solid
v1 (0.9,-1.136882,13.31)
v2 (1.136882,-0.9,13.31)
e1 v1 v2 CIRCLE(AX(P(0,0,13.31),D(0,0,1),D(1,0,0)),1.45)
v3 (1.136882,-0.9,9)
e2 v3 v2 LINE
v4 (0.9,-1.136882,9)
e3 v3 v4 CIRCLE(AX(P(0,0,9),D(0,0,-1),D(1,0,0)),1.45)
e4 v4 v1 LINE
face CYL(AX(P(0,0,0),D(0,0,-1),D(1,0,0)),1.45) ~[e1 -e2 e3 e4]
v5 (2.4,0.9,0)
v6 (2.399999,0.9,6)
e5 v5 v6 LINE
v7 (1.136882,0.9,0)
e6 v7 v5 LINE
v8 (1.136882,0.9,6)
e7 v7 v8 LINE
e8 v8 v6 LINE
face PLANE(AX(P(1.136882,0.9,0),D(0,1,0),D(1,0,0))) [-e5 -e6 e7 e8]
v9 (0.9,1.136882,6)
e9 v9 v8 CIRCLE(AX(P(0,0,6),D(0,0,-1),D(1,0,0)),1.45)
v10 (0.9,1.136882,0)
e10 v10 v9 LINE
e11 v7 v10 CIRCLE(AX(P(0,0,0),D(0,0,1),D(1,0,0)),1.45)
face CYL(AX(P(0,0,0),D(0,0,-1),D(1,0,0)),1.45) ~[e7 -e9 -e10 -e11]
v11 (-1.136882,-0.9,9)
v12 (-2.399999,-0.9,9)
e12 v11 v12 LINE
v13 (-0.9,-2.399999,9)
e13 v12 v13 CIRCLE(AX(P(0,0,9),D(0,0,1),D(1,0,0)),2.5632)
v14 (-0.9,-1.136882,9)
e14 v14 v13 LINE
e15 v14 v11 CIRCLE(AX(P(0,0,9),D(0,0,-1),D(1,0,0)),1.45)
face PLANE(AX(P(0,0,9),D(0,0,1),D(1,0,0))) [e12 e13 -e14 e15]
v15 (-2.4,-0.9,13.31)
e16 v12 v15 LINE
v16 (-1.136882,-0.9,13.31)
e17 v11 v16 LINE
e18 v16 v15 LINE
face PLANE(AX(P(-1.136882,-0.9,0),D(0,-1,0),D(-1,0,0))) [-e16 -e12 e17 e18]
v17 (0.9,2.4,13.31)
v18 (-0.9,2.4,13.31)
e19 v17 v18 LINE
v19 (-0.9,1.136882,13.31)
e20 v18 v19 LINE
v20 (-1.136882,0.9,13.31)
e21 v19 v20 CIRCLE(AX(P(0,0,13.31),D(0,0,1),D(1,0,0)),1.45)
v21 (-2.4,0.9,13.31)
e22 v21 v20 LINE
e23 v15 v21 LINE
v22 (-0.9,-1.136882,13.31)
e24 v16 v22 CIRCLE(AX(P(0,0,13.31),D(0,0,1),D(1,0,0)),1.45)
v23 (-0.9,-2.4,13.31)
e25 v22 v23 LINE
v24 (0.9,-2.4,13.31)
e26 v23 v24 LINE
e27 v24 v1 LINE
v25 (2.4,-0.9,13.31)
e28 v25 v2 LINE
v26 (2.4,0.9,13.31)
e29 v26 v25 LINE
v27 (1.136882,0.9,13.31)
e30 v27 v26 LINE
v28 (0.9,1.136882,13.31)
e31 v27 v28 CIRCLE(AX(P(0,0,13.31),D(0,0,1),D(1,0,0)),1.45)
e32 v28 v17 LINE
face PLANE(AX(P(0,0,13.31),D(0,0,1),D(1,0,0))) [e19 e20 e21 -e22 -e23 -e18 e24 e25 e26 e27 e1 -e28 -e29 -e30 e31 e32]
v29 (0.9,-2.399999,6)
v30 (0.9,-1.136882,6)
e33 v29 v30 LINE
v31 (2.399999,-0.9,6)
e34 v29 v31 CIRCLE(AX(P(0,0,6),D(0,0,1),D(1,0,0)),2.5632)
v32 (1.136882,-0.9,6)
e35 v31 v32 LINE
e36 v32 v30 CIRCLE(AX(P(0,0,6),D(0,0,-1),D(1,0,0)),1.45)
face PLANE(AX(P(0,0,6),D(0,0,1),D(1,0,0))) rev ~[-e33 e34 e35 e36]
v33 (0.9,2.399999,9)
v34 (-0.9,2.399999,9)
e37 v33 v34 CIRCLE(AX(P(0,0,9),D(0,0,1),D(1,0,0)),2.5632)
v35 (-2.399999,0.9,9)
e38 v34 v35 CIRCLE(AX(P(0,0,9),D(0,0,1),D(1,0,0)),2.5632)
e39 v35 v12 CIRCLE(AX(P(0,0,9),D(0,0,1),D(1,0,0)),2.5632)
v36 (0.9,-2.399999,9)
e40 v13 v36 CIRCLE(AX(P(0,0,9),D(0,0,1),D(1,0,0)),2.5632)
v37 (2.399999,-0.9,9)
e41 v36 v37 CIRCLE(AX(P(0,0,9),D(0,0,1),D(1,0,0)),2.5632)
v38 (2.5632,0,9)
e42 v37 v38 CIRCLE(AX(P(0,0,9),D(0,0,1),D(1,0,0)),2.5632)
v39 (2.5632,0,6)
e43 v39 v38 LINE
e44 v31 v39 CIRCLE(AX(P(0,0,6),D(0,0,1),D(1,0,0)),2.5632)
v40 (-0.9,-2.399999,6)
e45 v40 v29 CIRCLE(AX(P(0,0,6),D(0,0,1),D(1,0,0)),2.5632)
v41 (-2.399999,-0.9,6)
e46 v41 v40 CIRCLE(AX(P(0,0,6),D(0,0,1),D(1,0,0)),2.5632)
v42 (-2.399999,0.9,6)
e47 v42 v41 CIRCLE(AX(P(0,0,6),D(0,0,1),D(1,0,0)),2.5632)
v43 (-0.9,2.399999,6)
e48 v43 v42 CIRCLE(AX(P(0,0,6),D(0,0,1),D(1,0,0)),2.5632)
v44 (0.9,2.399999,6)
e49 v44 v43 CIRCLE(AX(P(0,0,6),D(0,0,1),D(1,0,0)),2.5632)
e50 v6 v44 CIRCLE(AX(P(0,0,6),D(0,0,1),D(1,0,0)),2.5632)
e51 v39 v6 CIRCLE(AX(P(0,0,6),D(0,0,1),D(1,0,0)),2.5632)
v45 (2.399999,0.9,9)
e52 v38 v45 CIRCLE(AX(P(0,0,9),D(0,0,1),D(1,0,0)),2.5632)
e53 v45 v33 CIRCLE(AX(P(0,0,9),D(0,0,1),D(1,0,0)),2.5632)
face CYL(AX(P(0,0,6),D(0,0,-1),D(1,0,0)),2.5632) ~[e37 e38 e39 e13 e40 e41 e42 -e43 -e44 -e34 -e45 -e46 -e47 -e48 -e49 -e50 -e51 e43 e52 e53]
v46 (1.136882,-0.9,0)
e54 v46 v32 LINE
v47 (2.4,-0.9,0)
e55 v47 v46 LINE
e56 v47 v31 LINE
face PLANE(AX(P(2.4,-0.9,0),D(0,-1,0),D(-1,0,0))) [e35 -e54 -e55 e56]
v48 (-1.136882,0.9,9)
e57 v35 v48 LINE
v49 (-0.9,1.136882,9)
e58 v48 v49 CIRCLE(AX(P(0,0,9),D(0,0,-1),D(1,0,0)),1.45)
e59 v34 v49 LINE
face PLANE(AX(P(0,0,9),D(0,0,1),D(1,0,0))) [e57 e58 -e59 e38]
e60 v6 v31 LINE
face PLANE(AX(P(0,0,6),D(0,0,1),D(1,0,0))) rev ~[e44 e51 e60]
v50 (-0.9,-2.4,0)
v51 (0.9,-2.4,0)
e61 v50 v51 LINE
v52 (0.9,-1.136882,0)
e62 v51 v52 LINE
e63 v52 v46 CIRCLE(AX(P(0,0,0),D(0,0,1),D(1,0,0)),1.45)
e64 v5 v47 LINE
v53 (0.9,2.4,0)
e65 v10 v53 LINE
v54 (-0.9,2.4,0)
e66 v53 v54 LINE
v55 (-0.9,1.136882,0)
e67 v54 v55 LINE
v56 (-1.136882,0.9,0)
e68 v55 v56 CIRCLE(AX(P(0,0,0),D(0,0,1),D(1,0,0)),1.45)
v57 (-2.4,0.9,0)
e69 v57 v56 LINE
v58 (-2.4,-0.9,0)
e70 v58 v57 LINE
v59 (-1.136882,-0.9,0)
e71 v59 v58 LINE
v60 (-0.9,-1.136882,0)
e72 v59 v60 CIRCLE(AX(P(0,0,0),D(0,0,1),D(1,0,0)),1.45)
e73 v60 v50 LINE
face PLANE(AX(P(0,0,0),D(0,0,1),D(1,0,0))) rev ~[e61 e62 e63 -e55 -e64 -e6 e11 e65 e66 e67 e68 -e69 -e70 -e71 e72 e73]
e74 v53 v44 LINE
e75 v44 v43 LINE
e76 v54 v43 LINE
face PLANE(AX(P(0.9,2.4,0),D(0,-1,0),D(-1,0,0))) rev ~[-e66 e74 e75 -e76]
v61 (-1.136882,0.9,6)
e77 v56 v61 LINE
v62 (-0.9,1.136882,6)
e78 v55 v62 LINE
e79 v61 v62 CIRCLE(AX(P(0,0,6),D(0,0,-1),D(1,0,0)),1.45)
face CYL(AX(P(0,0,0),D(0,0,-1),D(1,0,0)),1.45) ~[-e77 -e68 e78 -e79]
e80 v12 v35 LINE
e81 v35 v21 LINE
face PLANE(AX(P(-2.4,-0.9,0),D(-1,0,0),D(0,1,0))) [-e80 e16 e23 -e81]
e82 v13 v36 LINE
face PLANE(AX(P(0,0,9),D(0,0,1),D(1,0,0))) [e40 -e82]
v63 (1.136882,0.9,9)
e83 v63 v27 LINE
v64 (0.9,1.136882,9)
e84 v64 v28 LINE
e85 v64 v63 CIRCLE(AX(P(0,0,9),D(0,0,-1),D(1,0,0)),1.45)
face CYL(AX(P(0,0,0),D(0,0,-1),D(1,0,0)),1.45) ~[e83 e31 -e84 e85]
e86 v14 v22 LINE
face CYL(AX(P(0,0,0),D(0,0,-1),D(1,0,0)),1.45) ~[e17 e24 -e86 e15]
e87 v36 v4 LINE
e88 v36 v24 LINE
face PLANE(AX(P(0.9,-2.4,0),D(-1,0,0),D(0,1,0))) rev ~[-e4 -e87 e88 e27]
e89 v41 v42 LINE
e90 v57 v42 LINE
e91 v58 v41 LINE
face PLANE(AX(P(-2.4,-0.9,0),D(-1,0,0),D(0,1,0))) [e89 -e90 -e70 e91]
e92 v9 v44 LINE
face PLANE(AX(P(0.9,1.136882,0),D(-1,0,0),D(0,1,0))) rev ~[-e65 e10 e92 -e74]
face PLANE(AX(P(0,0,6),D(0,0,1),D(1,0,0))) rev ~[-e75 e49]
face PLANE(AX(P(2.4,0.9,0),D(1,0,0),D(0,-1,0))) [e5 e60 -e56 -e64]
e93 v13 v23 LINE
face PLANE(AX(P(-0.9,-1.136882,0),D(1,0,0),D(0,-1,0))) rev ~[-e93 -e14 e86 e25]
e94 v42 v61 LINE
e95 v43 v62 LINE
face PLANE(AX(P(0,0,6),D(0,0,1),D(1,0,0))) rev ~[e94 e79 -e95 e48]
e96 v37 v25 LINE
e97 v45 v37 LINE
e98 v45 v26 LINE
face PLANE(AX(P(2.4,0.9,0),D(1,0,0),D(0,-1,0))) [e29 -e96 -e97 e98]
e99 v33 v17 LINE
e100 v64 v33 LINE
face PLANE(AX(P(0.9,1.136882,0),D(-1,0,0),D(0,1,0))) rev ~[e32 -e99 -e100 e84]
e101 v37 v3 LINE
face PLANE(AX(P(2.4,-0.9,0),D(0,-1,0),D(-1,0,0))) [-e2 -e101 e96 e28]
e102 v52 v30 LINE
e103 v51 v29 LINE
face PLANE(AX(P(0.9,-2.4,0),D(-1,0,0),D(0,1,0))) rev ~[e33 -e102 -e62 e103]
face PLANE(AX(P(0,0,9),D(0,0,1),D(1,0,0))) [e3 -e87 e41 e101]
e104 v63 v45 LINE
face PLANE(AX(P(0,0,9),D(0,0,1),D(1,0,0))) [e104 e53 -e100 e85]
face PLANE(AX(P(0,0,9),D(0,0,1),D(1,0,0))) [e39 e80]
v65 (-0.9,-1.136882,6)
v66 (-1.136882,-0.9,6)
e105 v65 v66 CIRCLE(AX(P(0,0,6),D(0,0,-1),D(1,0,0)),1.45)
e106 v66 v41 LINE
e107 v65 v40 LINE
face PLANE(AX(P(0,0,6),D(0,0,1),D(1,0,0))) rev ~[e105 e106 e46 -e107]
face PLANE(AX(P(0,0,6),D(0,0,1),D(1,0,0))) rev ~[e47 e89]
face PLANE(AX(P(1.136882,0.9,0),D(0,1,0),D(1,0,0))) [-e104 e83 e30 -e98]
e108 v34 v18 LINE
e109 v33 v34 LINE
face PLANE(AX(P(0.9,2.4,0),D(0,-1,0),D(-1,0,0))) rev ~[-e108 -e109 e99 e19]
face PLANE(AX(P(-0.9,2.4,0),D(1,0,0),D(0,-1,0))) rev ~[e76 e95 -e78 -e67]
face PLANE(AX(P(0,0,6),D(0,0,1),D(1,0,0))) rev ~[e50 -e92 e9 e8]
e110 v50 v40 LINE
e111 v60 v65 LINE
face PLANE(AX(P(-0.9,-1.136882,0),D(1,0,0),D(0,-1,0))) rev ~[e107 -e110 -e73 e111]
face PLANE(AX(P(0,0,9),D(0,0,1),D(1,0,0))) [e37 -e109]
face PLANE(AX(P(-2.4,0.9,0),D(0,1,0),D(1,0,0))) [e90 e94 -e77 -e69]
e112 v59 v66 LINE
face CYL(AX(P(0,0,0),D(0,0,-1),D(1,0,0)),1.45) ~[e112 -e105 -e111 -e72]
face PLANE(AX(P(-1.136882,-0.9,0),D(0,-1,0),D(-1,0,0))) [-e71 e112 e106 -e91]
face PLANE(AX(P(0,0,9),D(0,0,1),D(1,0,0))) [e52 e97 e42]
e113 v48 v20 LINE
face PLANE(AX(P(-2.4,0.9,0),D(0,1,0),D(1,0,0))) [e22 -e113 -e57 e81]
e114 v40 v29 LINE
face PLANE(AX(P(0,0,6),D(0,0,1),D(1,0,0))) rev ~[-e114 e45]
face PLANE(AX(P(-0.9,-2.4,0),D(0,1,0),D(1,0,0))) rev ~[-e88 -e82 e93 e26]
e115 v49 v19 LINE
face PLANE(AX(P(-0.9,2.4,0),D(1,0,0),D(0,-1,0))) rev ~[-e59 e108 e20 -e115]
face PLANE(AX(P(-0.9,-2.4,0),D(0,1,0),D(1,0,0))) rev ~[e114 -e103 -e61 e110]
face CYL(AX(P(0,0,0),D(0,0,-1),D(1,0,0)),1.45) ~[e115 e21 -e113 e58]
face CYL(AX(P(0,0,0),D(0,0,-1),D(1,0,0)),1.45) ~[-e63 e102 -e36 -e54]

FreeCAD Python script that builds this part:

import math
import FreeCAD as App
import Part
import Sketcher

doc = App.newDocument("Part")
params = doc.addObject("Spreadsheet::Sheet", "Params")
for row, (alias, value) in enumerate([
    ("sketch1_radius", "1.45 mm"),
    ("sketch1_width", "1.8 mm"),
    ("pad1_length", "13.31 mm"),
    ("pad2_length", "3 mm"),
], start=1):
    params.set(f"A{row}", alias)
    params.set(f"B{row}", "=" + value)
    params.setAlias(f"B{row}", alias)

body = doc.addObject("PartDesign::Body", "Body")

sketch1 = body.newObject("Sketcher::SketchObject", "Sketch")
sketch1.AttachmentSupport = (doc.getObject("XY_Plane"), [""])
sketch1.MapMode = "FlatFace"
sketch1.addGeometry(Part.LineSegment(App.Vector(-0.9, -1.136882, 0), App.Vector(-0.9, -2.4, 0)), False)
sketch1.addGeometry(Part.LineSegment(App.Vector(-0.9, -2.4, 0), App.Vector(0.9, -2.4, 0)), False)
sketch1.addGeometry(Part.LineSegment(App.Vector(0.9, -2.4, 0), App.Vector(0.9, -1.136882, 0)), False)
sketch1.addGeometry(Part.ArcOfCircle(Part.Circle(App.Vector(0, 0, 0), App.Vector(0, 0, 1), 1.45), math.radians(-51.633486), math.radians(-38.366514)), False)
sketch1.addGeometry(Part.LineSegment(App.Vector(1.136882, -0.9, 0), App.Vector(2.4, -0.9, 0)), False)
sketch1.addGeometry(Part.LineSegment(App.Vector(2.4, -0.9, 0), App.Vector(2.4, 0.9, 0)), False)
sketch1.addGeometry(Part.LineSegment(App.Vector(2.4, 0.9, 0), App.Vector(1.136882, 0.9, 0)), False)
sketch1.addGeometry(Part.ArcOfCircle(Part.Circle(App.Vector(0, 0, 0), App.Vector(0, 0, 1), 1.45), math.radians(38.366514), math.radians(51.633486)), False)
sketch1.addGeometry(Part.LineSegment(App.Vector(0.9, 1.136882, 0), App.Vector(0.9, 2.4, 0)), False)
sketch1.addGeometry(Part.LineSegment(App.Vector(0.9, 2.4, 0), App.Vector(-0.9, 2.4, 0)), False)
sketch1.addGeometry(Part.LineSegment(App.Vector(-0.9, 2.4, 0), App.Vector(-0.9, 1.136882, 0)), False)
sketch1.addGeometry(Part.ArcOfCircle(Part.Circle(App.Vector(0, 0, 0), App.Vector(0, 0, 1), 1.45), math.radians(128.366514), math.radians(141.633486)), False)
sketch1.addGeometry(Part.LineSegment(App.Vector(-1.136882, 0.9, 0), App.Vector(-2.4, 0.9, 0)), False)
sketch1.addGeometry(Part.LineSegment(App.Vector(-2.4, 0.9, 0), App.Vector(-2.4, -0.9, 0)), False)
sketch1.addGeometry(Part.LineSegment(App.Vector(-2.4, -0.9, 0), App.Vector(-1.136882, -0.9, 0)), False)
sketch1.addGeometry(Part.ArcOfCircle(Part.Circle(App.Vector(0, 0, 0), App.Vector(0, 0, 1), 1.45), math.radians(-141.633486), math.radians(-128.366514)), False)
sketch1.addConstraint(Sketcher.Constraint("Coincident", 0, 2, 1, 1))
sketch1.addConstraint(Sketcher.Constraint("Coincident", 1, 2, 2, 1))
sketch1.addConstraint(Sketcher.Constraint("Coincident", 2, 2, 3, 1))
sketch1.addConstraint(Sketcher.Constraint("Coincident", 3, 2, 4, 1))
sketch1.addConstraint(Sketcher.Constraint("Coincident", 4, 2, 5, 1))
sketch1.addConstraint(Sketcher.Constraint("Coincident", 5, 2, 6, 1))
sketch1.addConstraint(Sketcher.Constraint("Coincident", 6, 2, 7, 1))
sketch1.addConstraint(Sketcher.Constraint("Coincident", 7, 2, 8, 1))
sketch1.addConstraint(Sketcher.Constraint("Coincident", 8, 2, 9, 1))
sketch1.addConstraint(Sketcher.Constraint("Coincident", 9, 2, 10, 1))
sketch1.addConstraint(Sketcher.Constraint("Coincident", 10, 2, 11, 1))
sketch1.addConstraint(Sketcher.Constraint("Coincident", 11, 2, 12, 1))
sketch1.addConstraint(Sketcher.Constraint("Coincident", 12, 2, 13, 1))
sketch1.addConstraint(Sketcher.Constraint("Coincident", 13, 2, 14, 1))
sketch1.addConstraint(Sketcher.Constraint("Coincident", 14, 2, 15, 1))
sketch1.addConstraint(Sketcher.Constraint("Coincident", 15, 2, 0, 1))
sketch1.addConstraint(Sketcher.Constraint("Vertical", 0))
sketch1.addConstraint(Sketcher.Constraint("Horizontal", 1))
sketch1.addConstraint(Sketcher.Constraint("Vertical", 2))
sketch1.addConstraint(Sketcher.Constraint("Horizontal", 4))
sketch1.addConstraint(Sketcher.Constraint("Vertical", 5))
sketch1.addConstraint(Sketcher.Constraint("Horizontal", 6))
sketch1.addConstraint(Sketcher.Constraint("Vertical", 8))
sketch1.addConstraint(Sketcher.Constraint("Horizontal", 9))
sketch1.addConstraint(Sketcher.Constraint("Vertical", 10))
sketch1.addConstraint(Sketcher.Constraint("Horizontal", 12))
sketch1.addConstraint(Sketcher.Constraint("Vertical", 13))
sketch1.addConstraint(Sketcher.Constraint("Horizontal", 14))
sketch1.addConstraint(Sketcher.Constraint("Coincident", 3, 3, -1, 1))
sketch1.addConstraint(Sketcher.Constraint("Coincident", 7, 3, -1, 1))
sketch1.addConstraint(Sketcher.Constraint("Coincident", 11, 3, -1, 1))
sketch1.addConstraint(Sketcher.Constraint("Coincident", 15, 3, -1, 1))
sketch1.addConstraint(Sketcher.Constraint("Equal", 3, 7))
sketch1.addConstraint(Sketcher.Constraint("Equal", 7, 11))
sketch1.addConstraint(Sketcher.Constraint("Equal", 11, 15))
sketch1.addConstraint(Sketcher.Constraint("Symmetric", 0, 2, 8, 2, -1, 1))
sketch1.addConstraint(Sketcher.Constraint("Symmetric", 4, 2, 12, 2, -1, 1))
sketch1.addConstraint(Sketcher.Constraint("Horizontal", 7, 2, 10, 2))
sketch1.addConstraint(Sketcher.Constraint("Horizontal", 6, 2, 11, 2))
sketch1.addConstraint(Sketcher.Constraint("Horizontal", 4, 2, 13, 2))
sketch1.addConstraint(Sketcher.Constraint("Horizontal", 2, 2, 15, 2))
sketch1.addConstraint(Sketcher.Constraint("Equal", 14, 0))
sketch1.addConstraint(Sketcher.Constraint("Equal", 9, 5))
sketch1.addConstraint(Sketcher.Constraint("Radius", 3, 1.45))
sketch1.addConstraint(Sketcher.Constraint("DistanceX", 1, 1, 1, 2, 1.8))
sketch1.addConstraint(Sketcher.Constraint("DistanceY", 0, 2, -1, 1, 2.4))
sketch1.setExpression("Constraints[43]", "Params.sketch1_radius")
sketch1.setExpression("Constraints[44]", "Params.sketch1_width")
pad1 = body.newObject("PartDesign::Pad", "Pad")
pad1.Profile = sketch1
pad1.setExpression("Length", "Params.pad1_length")

sketch2 = body.newObject("Sketcher::SketchObject", "Sketch001")
sketch2.AttachmentSupport = (doc.getObject("XY_Plane"), [""])
sketch2.MapMode = "FlatFace"
sketch2.AttachmentOffset = App.Placement(App.Vector(0, 0, 6), App.Rotation())
sketch2.addGeometry(Part.Circle(App.Vector(0, 0, 0), App.Vector(0, 0, 1), 2.5632), False)
sketch2.addConstraint(Sketcher.Constraint("Coincident", 0, 3, -1, 1))
sketch2.addConstraint(Sketcher.Constraint("Diameter", 0, 5.1264))
pad2 = body.newObject("PartDesign::Pad", "Pad001")
pad2.Profile = sketch2
pad2.setExpression("Length", "Params.pad2_length")

doc.recompute()
